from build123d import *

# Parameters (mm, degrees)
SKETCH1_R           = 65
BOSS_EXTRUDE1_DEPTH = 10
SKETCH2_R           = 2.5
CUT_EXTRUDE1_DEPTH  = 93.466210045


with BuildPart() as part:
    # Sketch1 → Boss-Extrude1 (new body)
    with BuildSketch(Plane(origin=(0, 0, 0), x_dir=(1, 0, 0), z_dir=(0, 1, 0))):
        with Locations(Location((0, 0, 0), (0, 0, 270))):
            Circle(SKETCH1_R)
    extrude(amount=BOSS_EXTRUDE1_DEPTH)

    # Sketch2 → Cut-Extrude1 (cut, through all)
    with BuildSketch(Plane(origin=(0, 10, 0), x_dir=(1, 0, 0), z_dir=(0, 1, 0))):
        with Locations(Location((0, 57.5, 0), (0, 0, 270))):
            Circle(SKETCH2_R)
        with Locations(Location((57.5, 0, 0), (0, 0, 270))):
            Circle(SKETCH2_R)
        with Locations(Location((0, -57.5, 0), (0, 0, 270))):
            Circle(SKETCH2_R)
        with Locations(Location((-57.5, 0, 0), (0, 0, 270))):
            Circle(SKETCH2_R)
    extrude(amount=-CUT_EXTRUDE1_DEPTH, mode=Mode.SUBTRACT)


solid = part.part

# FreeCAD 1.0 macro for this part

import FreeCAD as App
import Part
import Sketcher
Q = App.Units.Quantity

doc = App.newDocument("Part")
body = doc.addObject("PartDesign::Body", "Body")

sketch1 = body.newObject("Sketcher::SketchObject", "Sketch")
sketch1.AttachmentSupport = (doc.getObject("XZ_Plane"), [""])
sketch1.MapMode = "FlatFace"
sketch1.addGeometry(Part.Circle(App.Vector(0, 0, 0), App.Vector(0, 0, 1), 65), False)
sketch1.addConstraint(Sketcher.Constraint("Coincident", 0, 3, -1, 1))
sketch1.addConstraint(Sketcher.Constraint("Diameter", 0, Q("130 mm")))
pad1 = body.newObject("PartDesign::Pad", "Pad")
pad1.Profile = sketch1
pad1.Length = 10
pad1.Reversed = True

sketch2 = body.newObject("Sketcher::SketchObject", "Sketch001")
sketch2.AttachmentSupport = (doc.getObject("XZ_Plane"), [""])
sketch2.MapMode = "FlatFace"
sketch2.AttachmentOffset = App.Placement(App.Vector(0, 0, -10), App.Rotation())
sketch2.addGeometry(Part.Circle(App.Vector(0, -57.5, 0), App.Vector(0, 0, 1), 2.5), False)
sketch2.addGeometry(Part.Circle(App.Vector(57.5, 0, 0), App.Vector(0, 0, 1), 2.5), False)
sketch2.addGeometry(Part.Circle(App.Vector(0, 57.5, 0), App.Vector(0, 0, 1), 2.5), False)
sketch2.addGeometry(Part.Circle(App.Vector(-57.5, 0, 0), App.Vector(0, 0, 1), 2.5), False)
sketch2.addConstraint(Sketcher.Constraint("Equal", 0, 1))
sketch2.addConstraint(Sketcher.Constraint("Equal", 1, 2))
sketch2.addConstraint(Sketcher.Constraint("Equal", 2, 3))
sketch2.addConstraint(Sketcher.Constraint("Symmetric", 0, 3, 2, 3, -1, 1))
sketch2.addConstraint(Sketcher.Constraint("Symmetric", 1, 3, 3, 3, -1, 1))
sketch2.addConstraint(Sketcher.Constraint("PointOnObject", 0, 3, -2))
sketch2.addConstraint(Sketcher.Constraint("PointOnObject", 1, 3, -1))
sketch2.addConstraint(Sketcher.Constraint("Diameter", 0, Q("5 mm")))
sketch2.addConstraint(Sketcher.Constraint("DistanceY", 0, 3, 2, 3, Q("115 mm")))
sketch2.addConstraint(Sketcher.Constraint("DistanceX", 3, 3, 1, 3, Q("115 mm")))
pocket1 = body.newObject("PartDesign::Pocket", "Pocket")
pocket1.Profile = sketch2
pocket1.Type = "ThroughAll"
pocket1.Reversed = True

doc.recompute()
